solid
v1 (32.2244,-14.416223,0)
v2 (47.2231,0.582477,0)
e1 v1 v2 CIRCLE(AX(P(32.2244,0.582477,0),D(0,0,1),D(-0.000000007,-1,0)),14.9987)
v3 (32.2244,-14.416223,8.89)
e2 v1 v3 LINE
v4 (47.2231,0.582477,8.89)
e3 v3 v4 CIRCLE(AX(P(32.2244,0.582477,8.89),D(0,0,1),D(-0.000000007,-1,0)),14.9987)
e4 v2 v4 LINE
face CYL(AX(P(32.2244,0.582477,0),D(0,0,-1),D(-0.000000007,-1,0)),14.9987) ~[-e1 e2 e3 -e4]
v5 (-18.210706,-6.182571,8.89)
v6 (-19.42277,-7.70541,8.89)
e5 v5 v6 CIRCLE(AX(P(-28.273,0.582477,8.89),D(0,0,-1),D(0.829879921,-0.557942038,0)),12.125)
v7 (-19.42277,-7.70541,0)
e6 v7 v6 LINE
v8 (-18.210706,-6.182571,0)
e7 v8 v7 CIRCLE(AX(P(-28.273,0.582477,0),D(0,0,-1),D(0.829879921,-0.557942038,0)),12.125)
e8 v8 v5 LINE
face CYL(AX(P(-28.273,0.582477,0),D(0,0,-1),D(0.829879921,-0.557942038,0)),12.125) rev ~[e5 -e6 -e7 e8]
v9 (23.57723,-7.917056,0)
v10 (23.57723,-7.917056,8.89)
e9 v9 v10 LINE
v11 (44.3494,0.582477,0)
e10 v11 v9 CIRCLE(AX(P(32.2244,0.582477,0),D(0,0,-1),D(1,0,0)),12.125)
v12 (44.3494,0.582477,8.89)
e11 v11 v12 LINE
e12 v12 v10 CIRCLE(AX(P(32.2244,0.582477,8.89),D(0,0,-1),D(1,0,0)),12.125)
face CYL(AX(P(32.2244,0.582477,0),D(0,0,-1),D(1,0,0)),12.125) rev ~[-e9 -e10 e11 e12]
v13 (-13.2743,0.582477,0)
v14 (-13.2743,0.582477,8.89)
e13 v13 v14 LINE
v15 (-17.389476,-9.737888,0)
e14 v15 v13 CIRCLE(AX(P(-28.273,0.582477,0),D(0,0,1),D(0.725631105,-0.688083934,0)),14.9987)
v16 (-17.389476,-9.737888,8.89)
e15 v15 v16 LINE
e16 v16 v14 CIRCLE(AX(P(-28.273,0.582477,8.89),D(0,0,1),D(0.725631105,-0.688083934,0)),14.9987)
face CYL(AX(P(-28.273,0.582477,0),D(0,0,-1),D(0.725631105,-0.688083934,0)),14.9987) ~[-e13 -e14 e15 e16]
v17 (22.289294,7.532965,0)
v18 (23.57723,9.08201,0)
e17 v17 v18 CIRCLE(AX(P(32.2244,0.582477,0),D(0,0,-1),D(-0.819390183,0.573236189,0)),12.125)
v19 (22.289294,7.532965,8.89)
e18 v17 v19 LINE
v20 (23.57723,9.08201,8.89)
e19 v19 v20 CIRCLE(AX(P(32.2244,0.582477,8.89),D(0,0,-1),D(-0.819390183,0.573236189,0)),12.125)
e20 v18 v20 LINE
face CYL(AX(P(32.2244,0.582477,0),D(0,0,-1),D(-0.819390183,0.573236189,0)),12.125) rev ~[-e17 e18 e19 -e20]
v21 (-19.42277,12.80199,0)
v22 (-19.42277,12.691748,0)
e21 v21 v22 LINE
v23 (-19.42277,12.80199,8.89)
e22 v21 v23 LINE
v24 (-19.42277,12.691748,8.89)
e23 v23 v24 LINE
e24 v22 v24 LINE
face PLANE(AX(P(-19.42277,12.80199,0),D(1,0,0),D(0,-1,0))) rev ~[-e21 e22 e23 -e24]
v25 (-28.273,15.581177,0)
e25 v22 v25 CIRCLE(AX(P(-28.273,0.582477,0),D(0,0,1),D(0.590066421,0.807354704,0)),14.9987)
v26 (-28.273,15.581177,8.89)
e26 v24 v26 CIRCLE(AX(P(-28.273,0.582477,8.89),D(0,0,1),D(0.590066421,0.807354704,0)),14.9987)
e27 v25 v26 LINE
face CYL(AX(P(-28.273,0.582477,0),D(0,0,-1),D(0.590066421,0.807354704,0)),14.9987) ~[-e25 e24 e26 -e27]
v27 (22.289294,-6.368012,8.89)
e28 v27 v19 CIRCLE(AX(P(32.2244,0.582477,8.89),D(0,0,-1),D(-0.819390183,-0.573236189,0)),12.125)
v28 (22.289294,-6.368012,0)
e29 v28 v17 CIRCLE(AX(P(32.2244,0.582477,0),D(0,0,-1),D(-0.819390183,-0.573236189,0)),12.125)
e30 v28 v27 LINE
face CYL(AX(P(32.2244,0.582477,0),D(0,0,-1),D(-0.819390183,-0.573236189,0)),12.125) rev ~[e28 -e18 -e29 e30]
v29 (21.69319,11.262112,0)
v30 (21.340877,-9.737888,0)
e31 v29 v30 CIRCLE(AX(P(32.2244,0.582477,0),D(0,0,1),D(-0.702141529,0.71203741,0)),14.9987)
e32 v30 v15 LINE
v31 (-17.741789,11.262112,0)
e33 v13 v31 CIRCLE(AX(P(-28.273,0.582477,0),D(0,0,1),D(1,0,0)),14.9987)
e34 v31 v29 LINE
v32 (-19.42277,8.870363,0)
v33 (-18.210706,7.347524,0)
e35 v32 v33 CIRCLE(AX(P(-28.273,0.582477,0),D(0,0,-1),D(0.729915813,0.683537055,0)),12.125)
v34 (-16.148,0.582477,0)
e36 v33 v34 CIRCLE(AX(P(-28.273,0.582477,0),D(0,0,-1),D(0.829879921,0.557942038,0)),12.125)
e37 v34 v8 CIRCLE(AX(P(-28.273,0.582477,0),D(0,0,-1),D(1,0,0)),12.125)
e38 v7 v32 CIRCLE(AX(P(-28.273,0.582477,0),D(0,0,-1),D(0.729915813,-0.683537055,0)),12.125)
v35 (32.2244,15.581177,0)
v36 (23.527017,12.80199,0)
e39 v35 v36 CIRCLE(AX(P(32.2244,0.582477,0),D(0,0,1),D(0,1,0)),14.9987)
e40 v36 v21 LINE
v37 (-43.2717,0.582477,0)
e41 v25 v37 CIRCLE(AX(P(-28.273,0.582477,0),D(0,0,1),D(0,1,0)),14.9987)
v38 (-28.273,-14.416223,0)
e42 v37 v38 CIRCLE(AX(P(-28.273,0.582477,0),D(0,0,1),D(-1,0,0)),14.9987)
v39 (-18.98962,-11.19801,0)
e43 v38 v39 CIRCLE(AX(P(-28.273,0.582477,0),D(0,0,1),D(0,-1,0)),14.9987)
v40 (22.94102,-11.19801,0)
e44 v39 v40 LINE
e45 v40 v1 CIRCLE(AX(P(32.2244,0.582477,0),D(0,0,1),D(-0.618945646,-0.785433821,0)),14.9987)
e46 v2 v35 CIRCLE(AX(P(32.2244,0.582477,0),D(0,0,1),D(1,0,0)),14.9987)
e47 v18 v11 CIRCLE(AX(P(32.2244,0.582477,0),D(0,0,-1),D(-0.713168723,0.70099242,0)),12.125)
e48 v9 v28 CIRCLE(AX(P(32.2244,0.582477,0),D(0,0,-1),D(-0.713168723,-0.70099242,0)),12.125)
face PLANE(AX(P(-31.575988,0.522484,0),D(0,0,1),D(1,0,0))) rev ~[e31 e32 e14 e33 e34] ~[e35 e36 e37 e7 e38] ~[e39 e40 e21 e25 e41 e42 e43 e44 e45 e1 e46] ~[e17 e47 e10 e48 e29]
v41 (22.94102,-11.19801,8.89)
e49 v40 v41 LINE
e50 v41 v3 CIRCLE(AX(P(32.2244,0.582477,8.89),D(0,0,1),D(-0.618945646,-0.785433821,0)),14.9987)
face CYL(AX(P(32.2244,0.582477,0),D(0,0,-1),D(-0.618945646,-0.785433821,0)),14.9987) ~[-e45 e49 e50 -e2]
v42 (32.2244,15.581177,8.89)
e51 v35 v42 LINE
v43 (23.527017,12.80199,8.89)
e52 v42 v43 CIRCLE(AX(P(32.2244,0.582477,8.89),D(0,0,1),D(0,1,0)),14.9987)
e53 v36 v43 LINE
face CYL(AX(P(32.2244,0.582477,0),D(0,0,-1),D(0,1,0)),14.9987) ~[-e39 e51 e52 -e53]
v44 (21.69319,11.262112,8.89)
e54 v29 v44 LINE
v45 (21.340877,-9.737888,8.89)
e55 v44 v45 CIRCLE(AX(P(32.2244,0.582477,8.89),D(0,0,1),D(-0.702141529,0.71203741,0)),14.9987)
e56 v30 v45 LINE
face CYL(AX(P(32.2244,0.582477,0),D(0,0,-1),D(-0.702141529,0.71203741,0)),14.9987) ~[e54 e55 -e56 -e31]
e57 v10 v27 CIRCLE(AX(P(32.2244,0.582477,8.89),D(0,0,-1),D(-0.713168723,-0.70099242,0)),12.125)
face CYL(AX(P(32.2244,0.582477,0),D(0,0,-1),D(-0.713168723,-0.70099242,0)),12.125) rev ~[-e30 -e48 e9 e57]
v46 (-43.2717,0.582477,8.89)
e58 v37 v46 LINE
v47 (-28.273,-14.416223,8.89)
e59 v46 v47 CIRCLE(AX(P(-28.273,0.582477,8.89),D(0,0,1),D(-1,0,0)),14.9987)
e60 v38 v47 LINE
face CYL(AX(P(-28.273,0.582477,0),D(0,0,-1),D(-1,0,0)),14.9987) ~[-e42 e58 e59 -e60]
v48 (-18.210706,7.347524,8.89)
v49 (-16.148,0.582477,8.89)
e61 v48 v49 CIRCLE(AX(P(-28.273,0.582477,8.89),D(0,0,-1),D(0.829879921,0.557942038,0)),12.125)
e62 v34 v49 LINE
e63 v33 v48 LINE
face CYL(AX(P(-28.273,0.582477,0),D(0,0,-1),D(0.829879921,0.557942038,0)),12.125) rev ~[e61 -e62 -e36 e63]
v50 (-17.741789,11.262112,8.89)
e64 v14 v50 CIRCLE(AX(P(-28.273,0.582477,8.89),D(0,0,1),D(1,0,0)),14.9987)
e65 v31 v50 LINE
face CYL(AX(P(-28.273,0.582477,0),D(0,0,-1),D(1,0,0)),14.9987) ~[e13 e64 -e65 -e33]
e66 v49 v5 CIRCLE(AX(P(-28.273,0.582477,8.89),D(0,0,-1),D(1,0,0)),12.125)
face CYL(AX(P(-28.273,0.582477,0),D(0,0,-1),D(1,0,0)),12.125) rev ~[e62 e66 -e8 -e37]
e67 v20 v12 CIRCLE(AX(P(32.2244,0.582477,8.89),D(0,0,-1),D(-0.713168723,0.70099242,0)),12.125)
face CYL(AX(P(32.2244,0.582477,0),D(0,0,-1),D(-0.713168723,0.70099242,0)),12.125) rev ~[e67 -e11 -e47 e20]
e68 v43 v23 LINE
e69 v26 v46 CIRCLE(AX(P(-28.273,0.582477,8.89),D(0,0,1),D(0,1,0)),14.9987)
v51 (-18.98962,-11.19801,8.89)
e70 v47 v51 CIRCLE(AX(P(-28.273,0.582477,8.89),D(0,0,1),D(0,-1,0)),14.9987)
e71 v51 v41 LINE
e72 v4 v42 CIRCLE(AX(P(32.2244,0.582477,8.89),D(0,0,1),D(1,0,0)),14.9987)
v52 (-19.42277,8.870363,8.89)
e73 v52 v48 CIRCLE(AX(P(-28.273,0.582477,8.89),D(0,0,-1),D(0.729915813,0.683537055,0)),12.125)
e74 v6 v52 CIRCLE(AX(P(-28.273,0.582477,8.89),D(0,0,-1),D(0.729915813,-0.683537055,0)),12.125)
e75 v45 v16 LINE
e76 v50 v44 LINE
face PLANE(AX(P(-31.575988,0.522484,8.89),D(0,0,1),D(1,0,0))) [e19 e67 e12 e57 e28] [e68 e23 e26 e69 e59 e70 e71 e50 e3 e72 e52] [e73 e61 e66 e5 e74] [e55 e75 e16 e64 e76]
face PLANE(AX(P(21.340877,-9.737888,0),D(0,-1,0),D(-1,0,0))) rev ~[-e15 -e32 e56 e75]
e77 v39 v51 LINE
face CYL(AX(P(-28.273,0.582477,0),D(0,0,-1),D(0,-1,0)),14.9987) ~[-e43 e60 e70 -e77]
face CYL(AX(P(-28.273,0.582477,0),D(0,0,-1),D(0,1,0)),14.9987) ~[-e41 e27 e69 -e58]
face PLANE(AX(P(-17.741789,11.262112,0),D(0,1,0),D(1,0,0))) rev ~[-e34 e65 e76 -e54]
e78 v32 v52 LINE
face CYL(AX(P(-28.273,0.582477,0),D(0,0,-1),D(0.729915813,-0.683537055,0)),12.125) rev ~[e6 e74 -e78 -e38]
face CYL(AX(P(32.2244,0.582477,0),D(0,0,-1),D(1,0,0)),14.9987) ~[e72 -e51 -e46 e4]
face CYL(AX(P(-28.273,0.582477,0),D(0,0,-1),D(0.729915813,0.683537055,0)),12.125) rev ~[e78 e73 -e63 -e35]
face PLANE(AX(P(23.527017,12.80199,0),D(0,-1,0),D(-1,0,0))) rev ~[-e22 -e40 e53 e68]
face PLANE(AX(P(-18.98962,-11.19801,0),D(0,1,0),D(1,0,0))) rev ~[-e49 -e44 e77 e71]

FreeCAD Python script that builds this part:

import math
import FreeCAD as App
import Part
import Sketcher
Q = App.Units.Quantity

doc = App.newDocument("Part")
body = doc.addObject("PartDesign::Body", "Body")

# Sketch on XY plane
sketch1 = doc.addObject("Sketcher::SketchObject", "Sketch")
body.addObject(sketch1)
sketch1.AttachmentSupport = (doc.XY_Plane, [""])
sketch1.MapMode = "FlatFace"
sketch1.addGeometry([
    Part.LineSegment(App.Vector(-18.99, -11.2, 0), App.Vector(22.94, -11.2, 0)),  # 0
    Part.ArcOfCircle(Part.Circle(App.Vector(32.22, 0.58, 0), App.Vector(0, 0, 1), 15), math.radians(-128), math.radians(-90)),  # 1
    Part.ArcOfCircle(Part.Circle(App.Vector(32.22, 0.58, 0), App.Vector(0, 0, 1), 15), math.radians(-90), math.radians(0)),  # 2
    Part.ArcOfCircle(Part.Circle(App.Vector(32.22, 0.58, 0), App.Vector(0, 0, 1), 15), math.radians(0), math.radians(90)),  # 3
    Part.ArcOfCircle(Part.Circle(App.Vector(32.22, 0.58, 0), App.Vector(0, 0, 1), 15), math.radians(90), math.radians(125)),  # 4
    Part.LineSegment(App.Vector(23.53, 12.8, 0), App.Vector(-19.42, 12.8, 0)),  # 5
    Part.LineSegment(App.Vector(-19.42, 12.8, 0), App.Vector(-19.42, 12.69, 0)),  # 6
    Part.ArcOfCircle(Part.Circle(App.Vector(-28.27, 0.58, 0), App.Vector(0, 0, 1), 15), math.radians(54), math.radians(90)),  # 7
    Part.ArcOfCircle(Part.Circle(App.Vector(-28.27, 0.58, 0), App.Vector(0, 0, 1), 15), math.radians(90), math.radians(180)),  # 8
    Part.ArcOfCircle(Part.Circle(App.Vector(-28.27, 0.58, 0), App.Vector(0, 0, 1), 15), math.radians(180), math.radians(270)),  # 9
    Part.ArcOfCircle(Part.Circle(App.Vector(-28.27, 0.58, 0), App.Vector(0, 0, 1), 15), math.radians(-90), math.radians(-52)),  # 10
    Part.ArcOfCircle(Part.Circle(App.Vector(-28.27, 0.58, 0), App.Vector(0, 0, 1), 12.12), math.radians(43), math.radians(317)),  # 11
    Part.ArcOfCircle(Part.Circle(App.Vector(-28.27, 0.58, 0), App.Vector(0, 0, 1), 12.13), math.radians(33.91), math.radians(43.12)),  # 12
    Part.ArcOfCircle(Part.Circle(App.Vector(-28.27, 0.58, 0), App.Vector(0, 0, 1), 12.12), math.radians(0), math.radians(34)),  # 13
    Part.ArcOfCircle(Part.Circle(App.Vector(-28.27, 0.58, 0), App.Vector(0, 0, 1), 12.12), math.radians(-34), math.radians(0)),  # 14
    Part.ArcOfCircle(Part.Circle(App.Vector(-28.27, 0.58, 0), App.Vector(0, 0, 1), 12.12), math.radians(-43.12), math.radians(-33.91)),  # 15
    Part.ArcOfCircle(Part.Circle(App.Vector(32.22, 0.58, 0), App.Vector(0, 0, 1), 12.12), math.radians(-135), math.radians(0)),  # 16
    Part.ArcOfCircle(Part.Circle(App.Vector(32.22, 0.58, 0), App.Vector(0, 0, 1), 12.13), math.radians(-145.02), math.radians(-135.49)),  # 17
    Part.ArcOfCircle(Part.Circle(App.Vector(32.22, 0.58, 0), App.Vector(0, 0, 1), 12.12), math.radians(145), math.radians(215)),  # 18
    Part.ArcOfCircle(Part.Circle(App.Vector(32.22, 0.58, 0), App.Vector(0, 0, 1), 12.13), math.radians(135.49), math.radians(145.02)),  # 19
    Part.ArcOfCircle(Part.Circle(App.Vector(32.22, 0.58, 0), App.Vector(0, 0, 1), 12.12), math.radians(0), math.radians(135)),  # 20
    Part.LineSegment(App.Vector(21.34, -9.74, 0), App.Vector(-17.39, -9.74, 0)),  # 21
    Part.ArcOfCircle(Part.Circle(App.Vector(-28.27, 0.58, 0), App.Vector(0, 0, 1), 15), math.radians(-43), math.radians(0)),  # 22
    Part.ArcOfCircle(Part.Circle(App.Vector(-28.27, 0.58, 0), App.Vector(0, 0, 1), 15), math.radians(0), math.radians(45)),  # 23
    Part.LineSegment(App.Vector(-17.74, 11.26, 0), App.Vector(21.69, 11.26, 0)),  # 24
    Part.ArcOfCircle(Part.Circle(App.Vector(32.22, 0.58, 0), App.Vector(0, 0, 1), 15), math.radians(135), math.radians(223)),  # 25
], False)
sketch1.addConstraint([
    Sketcher.Constraint("Coincident", 0, 2, 1, 1),
    Sketcher.Constraint("Tangent", 1, 2, 2, 1),
    Sketcher.Constraint("Tangent", 2, 2, 3, 1),
    Sketcher.Constraint("Tangent", 3, 2, 4, 1),
    Sketcher.Constraint("Coincident", 4, 2, 5, 1),
    Sketcher.Constraint("Coincident", 5, 2, 6, 1),
    Sketcher.Constraint("Coincident", 6, 2, 7, 1),
    Sketcher.Constraint("Tangent", 7, 2, 8, 1),
    Sketcher.Constraint("Tangent", 8, 2, 9, 1),
    Sketcher.Constraint("Tangent", 9, 2, 10, 1),
    Sketcher.Constraint("Coincident", 10, 2, 0, 1),
    Sketcher.Constraint("Tangent", 11, 1, 12, 2),
    Sketcher.Constraint("Tangent", 12, 1, 13, 2),
    Sketcher.Constraint("Tangent", 13, 1, 14, 2),
    Sketcher.Constraint("Tangent", 14, 1, 15, 2),
    Sketcher.Constraint("Tangent", 15, 1, 11, 2),
    Sketcher.Constraint("Tangent", 16, 1, 17, 2),
    Sketcher.Constraint("Tangent", 17, 1, 18, 2),
    Sketcher.Constraint("Tangent", 18, 1, 19, 2),
    Sketcher.Constraint("Tangent", 19, 1, 20, 2),
    Sketcher.Constraint("Tangent", 20, 1, 16, 2),
    Sketcher.Constraint("Coincident", 21, 2, 22, 1),
    Sketcher.Constraint("Tangent", 22, 2, 23, 1),
    Sketcher.Constraint("Coincident", 23, 2, 24, 1),
    Sketcher.Constraint("Coincident", 24, 2, 25, 1),
    Sketcher.Constraint("Coincident", 25, 2, 21, 1),
    Sketcher.Constraint("Horizontal", 0),
    Sketcher.Constraint("Horizontal", 5),
    Sketcher.Constraint("Vertical", 6),
    Sketcher.Constraint("Horizontal", 21),
    Sketcher.Constraint("Horizontal", 24),
    Sketcher.Constraint("Coincident", 3, 3, 1, 3),
    Sketcher.Constraint("Coincident", 9, 3, 7, 3),
    Sketcher.Constraint("Coincident", 11, 3, 7, 3),
    Sketcher.Constraint("Coincident", 13, 3, 7, 3),
    Sketcher.Constraint("Coincident", 16, 3, 1, 3),
    Sketcher.Constraint("Coincident", 18, 3, 1, 3),
    Sketcher.Constraint("Coincident", 22, 3, 7, 3),
    Sketcher.Constraint("Coincident", 25, 3, 1, 3),
    Sketcher.Constraint("Equal", 3, 4),
    Sketcher.Constraint("Equal", 4, 7),
    Sketcher.Constraint("Equal", 9, 10),
    Sketcher.Constraint("Equal", 15, 16),
    Sketcher.Constraint("Equal", 10, 22),
    Sketcher.Constraint("Equal", 22, 23),
    Sketcher.Constraint("Equal", 23, 25),
    Sketcher.Constraint("Horizontal", 4, 3, 7, 3),
    Sketcher.Constraint("Horizontal", 25, 3, 2, 2),
    Sketcher.Constraint("Horizontal", 2, 2, 8, 2),
    Sketcher.Constraint("Horizontal", 8, 2, 13, 1),
    Sketcher.Constraint("Horizontal", 13, 1, 20, 1),
    Sketcher.Constraint("Horizontal", 20, 1, 22, 2),
    Sketcher.Constraint("Vertical", 25, 3, 1, 2),
    Sketcher.Constraint("Vertical", 1, 2, 3, 2),
    Sketcher.Constraint("Vertical", 23, 3, 7, 2),
    Sketcher.Constraint("Vertical", 7, 2, 9, 2),
    Sketcher.Constraint("Vertical", 6, 2, 11, 1),
    Sketcher.Constraint("Vertical", 12, 1, 14, 1),
    Sketcher.Constraint("Vertical", 11, 1, 15, 1),
    Sketcher.Constraint("Vertical", 17, 1, 18, 1),
    Sketcher.Constraint("Vertical", 16, 1, 19, 1),
    Sketcher.Constraint("Radius", 1, Q("0.5905 in")),
    Sketcher.Constraint("Radius", 11, Q("12.125 mm")),
    Sketcher.Constraint("DistanceX", 0, 1, 0, 2, Q("41.93064 mm")),
    Sketcher.Constraint("DistanceX", 24, 1, 24, 2, Q("39.43498 mm")),
    Sketcher.Constraint("DistanceX", -1, 1, 1, 3, Q("32.2244 mm")),
    Sketcher.Constraint("DistanceX", 7, 3, -1, 1, Q("28.273 mm")),
    Sketcher.Constraint("DistanceY", 10, 2, 15, 1, Q("3.492599 mm")),
    Sketcher.Constraint("DistanceX", 5, 2, 5, 1, Q("42.949787 mm")),
    Sketcher.Constraint("DistanceX", 21, 2, 21, 1, Q("38.730353 mm")),
    Sketcher.Constraint("DistanceY", 0, 2, -1, 1, Q("11.19801 mm")),
    Sketcher.Constraint("DistanceY", 14, 1, -1, 1, Q("6.182571 mm")),
    Sketcher.Constraint("DistanceX", -1, 1, 16, 1, Q("23.57723 mm")),
    Sketcher.Constraint("DistanceY", 17, 1, 1, 3, Q("6.950489 mm")),
])
pad1 = doc.addObject("PartDesign::Pad", "Pad")
body.addObject(pad1)
pad1.Profile = sketch1
pad1.Length = Q("0.35 in")

doc.recompute()
